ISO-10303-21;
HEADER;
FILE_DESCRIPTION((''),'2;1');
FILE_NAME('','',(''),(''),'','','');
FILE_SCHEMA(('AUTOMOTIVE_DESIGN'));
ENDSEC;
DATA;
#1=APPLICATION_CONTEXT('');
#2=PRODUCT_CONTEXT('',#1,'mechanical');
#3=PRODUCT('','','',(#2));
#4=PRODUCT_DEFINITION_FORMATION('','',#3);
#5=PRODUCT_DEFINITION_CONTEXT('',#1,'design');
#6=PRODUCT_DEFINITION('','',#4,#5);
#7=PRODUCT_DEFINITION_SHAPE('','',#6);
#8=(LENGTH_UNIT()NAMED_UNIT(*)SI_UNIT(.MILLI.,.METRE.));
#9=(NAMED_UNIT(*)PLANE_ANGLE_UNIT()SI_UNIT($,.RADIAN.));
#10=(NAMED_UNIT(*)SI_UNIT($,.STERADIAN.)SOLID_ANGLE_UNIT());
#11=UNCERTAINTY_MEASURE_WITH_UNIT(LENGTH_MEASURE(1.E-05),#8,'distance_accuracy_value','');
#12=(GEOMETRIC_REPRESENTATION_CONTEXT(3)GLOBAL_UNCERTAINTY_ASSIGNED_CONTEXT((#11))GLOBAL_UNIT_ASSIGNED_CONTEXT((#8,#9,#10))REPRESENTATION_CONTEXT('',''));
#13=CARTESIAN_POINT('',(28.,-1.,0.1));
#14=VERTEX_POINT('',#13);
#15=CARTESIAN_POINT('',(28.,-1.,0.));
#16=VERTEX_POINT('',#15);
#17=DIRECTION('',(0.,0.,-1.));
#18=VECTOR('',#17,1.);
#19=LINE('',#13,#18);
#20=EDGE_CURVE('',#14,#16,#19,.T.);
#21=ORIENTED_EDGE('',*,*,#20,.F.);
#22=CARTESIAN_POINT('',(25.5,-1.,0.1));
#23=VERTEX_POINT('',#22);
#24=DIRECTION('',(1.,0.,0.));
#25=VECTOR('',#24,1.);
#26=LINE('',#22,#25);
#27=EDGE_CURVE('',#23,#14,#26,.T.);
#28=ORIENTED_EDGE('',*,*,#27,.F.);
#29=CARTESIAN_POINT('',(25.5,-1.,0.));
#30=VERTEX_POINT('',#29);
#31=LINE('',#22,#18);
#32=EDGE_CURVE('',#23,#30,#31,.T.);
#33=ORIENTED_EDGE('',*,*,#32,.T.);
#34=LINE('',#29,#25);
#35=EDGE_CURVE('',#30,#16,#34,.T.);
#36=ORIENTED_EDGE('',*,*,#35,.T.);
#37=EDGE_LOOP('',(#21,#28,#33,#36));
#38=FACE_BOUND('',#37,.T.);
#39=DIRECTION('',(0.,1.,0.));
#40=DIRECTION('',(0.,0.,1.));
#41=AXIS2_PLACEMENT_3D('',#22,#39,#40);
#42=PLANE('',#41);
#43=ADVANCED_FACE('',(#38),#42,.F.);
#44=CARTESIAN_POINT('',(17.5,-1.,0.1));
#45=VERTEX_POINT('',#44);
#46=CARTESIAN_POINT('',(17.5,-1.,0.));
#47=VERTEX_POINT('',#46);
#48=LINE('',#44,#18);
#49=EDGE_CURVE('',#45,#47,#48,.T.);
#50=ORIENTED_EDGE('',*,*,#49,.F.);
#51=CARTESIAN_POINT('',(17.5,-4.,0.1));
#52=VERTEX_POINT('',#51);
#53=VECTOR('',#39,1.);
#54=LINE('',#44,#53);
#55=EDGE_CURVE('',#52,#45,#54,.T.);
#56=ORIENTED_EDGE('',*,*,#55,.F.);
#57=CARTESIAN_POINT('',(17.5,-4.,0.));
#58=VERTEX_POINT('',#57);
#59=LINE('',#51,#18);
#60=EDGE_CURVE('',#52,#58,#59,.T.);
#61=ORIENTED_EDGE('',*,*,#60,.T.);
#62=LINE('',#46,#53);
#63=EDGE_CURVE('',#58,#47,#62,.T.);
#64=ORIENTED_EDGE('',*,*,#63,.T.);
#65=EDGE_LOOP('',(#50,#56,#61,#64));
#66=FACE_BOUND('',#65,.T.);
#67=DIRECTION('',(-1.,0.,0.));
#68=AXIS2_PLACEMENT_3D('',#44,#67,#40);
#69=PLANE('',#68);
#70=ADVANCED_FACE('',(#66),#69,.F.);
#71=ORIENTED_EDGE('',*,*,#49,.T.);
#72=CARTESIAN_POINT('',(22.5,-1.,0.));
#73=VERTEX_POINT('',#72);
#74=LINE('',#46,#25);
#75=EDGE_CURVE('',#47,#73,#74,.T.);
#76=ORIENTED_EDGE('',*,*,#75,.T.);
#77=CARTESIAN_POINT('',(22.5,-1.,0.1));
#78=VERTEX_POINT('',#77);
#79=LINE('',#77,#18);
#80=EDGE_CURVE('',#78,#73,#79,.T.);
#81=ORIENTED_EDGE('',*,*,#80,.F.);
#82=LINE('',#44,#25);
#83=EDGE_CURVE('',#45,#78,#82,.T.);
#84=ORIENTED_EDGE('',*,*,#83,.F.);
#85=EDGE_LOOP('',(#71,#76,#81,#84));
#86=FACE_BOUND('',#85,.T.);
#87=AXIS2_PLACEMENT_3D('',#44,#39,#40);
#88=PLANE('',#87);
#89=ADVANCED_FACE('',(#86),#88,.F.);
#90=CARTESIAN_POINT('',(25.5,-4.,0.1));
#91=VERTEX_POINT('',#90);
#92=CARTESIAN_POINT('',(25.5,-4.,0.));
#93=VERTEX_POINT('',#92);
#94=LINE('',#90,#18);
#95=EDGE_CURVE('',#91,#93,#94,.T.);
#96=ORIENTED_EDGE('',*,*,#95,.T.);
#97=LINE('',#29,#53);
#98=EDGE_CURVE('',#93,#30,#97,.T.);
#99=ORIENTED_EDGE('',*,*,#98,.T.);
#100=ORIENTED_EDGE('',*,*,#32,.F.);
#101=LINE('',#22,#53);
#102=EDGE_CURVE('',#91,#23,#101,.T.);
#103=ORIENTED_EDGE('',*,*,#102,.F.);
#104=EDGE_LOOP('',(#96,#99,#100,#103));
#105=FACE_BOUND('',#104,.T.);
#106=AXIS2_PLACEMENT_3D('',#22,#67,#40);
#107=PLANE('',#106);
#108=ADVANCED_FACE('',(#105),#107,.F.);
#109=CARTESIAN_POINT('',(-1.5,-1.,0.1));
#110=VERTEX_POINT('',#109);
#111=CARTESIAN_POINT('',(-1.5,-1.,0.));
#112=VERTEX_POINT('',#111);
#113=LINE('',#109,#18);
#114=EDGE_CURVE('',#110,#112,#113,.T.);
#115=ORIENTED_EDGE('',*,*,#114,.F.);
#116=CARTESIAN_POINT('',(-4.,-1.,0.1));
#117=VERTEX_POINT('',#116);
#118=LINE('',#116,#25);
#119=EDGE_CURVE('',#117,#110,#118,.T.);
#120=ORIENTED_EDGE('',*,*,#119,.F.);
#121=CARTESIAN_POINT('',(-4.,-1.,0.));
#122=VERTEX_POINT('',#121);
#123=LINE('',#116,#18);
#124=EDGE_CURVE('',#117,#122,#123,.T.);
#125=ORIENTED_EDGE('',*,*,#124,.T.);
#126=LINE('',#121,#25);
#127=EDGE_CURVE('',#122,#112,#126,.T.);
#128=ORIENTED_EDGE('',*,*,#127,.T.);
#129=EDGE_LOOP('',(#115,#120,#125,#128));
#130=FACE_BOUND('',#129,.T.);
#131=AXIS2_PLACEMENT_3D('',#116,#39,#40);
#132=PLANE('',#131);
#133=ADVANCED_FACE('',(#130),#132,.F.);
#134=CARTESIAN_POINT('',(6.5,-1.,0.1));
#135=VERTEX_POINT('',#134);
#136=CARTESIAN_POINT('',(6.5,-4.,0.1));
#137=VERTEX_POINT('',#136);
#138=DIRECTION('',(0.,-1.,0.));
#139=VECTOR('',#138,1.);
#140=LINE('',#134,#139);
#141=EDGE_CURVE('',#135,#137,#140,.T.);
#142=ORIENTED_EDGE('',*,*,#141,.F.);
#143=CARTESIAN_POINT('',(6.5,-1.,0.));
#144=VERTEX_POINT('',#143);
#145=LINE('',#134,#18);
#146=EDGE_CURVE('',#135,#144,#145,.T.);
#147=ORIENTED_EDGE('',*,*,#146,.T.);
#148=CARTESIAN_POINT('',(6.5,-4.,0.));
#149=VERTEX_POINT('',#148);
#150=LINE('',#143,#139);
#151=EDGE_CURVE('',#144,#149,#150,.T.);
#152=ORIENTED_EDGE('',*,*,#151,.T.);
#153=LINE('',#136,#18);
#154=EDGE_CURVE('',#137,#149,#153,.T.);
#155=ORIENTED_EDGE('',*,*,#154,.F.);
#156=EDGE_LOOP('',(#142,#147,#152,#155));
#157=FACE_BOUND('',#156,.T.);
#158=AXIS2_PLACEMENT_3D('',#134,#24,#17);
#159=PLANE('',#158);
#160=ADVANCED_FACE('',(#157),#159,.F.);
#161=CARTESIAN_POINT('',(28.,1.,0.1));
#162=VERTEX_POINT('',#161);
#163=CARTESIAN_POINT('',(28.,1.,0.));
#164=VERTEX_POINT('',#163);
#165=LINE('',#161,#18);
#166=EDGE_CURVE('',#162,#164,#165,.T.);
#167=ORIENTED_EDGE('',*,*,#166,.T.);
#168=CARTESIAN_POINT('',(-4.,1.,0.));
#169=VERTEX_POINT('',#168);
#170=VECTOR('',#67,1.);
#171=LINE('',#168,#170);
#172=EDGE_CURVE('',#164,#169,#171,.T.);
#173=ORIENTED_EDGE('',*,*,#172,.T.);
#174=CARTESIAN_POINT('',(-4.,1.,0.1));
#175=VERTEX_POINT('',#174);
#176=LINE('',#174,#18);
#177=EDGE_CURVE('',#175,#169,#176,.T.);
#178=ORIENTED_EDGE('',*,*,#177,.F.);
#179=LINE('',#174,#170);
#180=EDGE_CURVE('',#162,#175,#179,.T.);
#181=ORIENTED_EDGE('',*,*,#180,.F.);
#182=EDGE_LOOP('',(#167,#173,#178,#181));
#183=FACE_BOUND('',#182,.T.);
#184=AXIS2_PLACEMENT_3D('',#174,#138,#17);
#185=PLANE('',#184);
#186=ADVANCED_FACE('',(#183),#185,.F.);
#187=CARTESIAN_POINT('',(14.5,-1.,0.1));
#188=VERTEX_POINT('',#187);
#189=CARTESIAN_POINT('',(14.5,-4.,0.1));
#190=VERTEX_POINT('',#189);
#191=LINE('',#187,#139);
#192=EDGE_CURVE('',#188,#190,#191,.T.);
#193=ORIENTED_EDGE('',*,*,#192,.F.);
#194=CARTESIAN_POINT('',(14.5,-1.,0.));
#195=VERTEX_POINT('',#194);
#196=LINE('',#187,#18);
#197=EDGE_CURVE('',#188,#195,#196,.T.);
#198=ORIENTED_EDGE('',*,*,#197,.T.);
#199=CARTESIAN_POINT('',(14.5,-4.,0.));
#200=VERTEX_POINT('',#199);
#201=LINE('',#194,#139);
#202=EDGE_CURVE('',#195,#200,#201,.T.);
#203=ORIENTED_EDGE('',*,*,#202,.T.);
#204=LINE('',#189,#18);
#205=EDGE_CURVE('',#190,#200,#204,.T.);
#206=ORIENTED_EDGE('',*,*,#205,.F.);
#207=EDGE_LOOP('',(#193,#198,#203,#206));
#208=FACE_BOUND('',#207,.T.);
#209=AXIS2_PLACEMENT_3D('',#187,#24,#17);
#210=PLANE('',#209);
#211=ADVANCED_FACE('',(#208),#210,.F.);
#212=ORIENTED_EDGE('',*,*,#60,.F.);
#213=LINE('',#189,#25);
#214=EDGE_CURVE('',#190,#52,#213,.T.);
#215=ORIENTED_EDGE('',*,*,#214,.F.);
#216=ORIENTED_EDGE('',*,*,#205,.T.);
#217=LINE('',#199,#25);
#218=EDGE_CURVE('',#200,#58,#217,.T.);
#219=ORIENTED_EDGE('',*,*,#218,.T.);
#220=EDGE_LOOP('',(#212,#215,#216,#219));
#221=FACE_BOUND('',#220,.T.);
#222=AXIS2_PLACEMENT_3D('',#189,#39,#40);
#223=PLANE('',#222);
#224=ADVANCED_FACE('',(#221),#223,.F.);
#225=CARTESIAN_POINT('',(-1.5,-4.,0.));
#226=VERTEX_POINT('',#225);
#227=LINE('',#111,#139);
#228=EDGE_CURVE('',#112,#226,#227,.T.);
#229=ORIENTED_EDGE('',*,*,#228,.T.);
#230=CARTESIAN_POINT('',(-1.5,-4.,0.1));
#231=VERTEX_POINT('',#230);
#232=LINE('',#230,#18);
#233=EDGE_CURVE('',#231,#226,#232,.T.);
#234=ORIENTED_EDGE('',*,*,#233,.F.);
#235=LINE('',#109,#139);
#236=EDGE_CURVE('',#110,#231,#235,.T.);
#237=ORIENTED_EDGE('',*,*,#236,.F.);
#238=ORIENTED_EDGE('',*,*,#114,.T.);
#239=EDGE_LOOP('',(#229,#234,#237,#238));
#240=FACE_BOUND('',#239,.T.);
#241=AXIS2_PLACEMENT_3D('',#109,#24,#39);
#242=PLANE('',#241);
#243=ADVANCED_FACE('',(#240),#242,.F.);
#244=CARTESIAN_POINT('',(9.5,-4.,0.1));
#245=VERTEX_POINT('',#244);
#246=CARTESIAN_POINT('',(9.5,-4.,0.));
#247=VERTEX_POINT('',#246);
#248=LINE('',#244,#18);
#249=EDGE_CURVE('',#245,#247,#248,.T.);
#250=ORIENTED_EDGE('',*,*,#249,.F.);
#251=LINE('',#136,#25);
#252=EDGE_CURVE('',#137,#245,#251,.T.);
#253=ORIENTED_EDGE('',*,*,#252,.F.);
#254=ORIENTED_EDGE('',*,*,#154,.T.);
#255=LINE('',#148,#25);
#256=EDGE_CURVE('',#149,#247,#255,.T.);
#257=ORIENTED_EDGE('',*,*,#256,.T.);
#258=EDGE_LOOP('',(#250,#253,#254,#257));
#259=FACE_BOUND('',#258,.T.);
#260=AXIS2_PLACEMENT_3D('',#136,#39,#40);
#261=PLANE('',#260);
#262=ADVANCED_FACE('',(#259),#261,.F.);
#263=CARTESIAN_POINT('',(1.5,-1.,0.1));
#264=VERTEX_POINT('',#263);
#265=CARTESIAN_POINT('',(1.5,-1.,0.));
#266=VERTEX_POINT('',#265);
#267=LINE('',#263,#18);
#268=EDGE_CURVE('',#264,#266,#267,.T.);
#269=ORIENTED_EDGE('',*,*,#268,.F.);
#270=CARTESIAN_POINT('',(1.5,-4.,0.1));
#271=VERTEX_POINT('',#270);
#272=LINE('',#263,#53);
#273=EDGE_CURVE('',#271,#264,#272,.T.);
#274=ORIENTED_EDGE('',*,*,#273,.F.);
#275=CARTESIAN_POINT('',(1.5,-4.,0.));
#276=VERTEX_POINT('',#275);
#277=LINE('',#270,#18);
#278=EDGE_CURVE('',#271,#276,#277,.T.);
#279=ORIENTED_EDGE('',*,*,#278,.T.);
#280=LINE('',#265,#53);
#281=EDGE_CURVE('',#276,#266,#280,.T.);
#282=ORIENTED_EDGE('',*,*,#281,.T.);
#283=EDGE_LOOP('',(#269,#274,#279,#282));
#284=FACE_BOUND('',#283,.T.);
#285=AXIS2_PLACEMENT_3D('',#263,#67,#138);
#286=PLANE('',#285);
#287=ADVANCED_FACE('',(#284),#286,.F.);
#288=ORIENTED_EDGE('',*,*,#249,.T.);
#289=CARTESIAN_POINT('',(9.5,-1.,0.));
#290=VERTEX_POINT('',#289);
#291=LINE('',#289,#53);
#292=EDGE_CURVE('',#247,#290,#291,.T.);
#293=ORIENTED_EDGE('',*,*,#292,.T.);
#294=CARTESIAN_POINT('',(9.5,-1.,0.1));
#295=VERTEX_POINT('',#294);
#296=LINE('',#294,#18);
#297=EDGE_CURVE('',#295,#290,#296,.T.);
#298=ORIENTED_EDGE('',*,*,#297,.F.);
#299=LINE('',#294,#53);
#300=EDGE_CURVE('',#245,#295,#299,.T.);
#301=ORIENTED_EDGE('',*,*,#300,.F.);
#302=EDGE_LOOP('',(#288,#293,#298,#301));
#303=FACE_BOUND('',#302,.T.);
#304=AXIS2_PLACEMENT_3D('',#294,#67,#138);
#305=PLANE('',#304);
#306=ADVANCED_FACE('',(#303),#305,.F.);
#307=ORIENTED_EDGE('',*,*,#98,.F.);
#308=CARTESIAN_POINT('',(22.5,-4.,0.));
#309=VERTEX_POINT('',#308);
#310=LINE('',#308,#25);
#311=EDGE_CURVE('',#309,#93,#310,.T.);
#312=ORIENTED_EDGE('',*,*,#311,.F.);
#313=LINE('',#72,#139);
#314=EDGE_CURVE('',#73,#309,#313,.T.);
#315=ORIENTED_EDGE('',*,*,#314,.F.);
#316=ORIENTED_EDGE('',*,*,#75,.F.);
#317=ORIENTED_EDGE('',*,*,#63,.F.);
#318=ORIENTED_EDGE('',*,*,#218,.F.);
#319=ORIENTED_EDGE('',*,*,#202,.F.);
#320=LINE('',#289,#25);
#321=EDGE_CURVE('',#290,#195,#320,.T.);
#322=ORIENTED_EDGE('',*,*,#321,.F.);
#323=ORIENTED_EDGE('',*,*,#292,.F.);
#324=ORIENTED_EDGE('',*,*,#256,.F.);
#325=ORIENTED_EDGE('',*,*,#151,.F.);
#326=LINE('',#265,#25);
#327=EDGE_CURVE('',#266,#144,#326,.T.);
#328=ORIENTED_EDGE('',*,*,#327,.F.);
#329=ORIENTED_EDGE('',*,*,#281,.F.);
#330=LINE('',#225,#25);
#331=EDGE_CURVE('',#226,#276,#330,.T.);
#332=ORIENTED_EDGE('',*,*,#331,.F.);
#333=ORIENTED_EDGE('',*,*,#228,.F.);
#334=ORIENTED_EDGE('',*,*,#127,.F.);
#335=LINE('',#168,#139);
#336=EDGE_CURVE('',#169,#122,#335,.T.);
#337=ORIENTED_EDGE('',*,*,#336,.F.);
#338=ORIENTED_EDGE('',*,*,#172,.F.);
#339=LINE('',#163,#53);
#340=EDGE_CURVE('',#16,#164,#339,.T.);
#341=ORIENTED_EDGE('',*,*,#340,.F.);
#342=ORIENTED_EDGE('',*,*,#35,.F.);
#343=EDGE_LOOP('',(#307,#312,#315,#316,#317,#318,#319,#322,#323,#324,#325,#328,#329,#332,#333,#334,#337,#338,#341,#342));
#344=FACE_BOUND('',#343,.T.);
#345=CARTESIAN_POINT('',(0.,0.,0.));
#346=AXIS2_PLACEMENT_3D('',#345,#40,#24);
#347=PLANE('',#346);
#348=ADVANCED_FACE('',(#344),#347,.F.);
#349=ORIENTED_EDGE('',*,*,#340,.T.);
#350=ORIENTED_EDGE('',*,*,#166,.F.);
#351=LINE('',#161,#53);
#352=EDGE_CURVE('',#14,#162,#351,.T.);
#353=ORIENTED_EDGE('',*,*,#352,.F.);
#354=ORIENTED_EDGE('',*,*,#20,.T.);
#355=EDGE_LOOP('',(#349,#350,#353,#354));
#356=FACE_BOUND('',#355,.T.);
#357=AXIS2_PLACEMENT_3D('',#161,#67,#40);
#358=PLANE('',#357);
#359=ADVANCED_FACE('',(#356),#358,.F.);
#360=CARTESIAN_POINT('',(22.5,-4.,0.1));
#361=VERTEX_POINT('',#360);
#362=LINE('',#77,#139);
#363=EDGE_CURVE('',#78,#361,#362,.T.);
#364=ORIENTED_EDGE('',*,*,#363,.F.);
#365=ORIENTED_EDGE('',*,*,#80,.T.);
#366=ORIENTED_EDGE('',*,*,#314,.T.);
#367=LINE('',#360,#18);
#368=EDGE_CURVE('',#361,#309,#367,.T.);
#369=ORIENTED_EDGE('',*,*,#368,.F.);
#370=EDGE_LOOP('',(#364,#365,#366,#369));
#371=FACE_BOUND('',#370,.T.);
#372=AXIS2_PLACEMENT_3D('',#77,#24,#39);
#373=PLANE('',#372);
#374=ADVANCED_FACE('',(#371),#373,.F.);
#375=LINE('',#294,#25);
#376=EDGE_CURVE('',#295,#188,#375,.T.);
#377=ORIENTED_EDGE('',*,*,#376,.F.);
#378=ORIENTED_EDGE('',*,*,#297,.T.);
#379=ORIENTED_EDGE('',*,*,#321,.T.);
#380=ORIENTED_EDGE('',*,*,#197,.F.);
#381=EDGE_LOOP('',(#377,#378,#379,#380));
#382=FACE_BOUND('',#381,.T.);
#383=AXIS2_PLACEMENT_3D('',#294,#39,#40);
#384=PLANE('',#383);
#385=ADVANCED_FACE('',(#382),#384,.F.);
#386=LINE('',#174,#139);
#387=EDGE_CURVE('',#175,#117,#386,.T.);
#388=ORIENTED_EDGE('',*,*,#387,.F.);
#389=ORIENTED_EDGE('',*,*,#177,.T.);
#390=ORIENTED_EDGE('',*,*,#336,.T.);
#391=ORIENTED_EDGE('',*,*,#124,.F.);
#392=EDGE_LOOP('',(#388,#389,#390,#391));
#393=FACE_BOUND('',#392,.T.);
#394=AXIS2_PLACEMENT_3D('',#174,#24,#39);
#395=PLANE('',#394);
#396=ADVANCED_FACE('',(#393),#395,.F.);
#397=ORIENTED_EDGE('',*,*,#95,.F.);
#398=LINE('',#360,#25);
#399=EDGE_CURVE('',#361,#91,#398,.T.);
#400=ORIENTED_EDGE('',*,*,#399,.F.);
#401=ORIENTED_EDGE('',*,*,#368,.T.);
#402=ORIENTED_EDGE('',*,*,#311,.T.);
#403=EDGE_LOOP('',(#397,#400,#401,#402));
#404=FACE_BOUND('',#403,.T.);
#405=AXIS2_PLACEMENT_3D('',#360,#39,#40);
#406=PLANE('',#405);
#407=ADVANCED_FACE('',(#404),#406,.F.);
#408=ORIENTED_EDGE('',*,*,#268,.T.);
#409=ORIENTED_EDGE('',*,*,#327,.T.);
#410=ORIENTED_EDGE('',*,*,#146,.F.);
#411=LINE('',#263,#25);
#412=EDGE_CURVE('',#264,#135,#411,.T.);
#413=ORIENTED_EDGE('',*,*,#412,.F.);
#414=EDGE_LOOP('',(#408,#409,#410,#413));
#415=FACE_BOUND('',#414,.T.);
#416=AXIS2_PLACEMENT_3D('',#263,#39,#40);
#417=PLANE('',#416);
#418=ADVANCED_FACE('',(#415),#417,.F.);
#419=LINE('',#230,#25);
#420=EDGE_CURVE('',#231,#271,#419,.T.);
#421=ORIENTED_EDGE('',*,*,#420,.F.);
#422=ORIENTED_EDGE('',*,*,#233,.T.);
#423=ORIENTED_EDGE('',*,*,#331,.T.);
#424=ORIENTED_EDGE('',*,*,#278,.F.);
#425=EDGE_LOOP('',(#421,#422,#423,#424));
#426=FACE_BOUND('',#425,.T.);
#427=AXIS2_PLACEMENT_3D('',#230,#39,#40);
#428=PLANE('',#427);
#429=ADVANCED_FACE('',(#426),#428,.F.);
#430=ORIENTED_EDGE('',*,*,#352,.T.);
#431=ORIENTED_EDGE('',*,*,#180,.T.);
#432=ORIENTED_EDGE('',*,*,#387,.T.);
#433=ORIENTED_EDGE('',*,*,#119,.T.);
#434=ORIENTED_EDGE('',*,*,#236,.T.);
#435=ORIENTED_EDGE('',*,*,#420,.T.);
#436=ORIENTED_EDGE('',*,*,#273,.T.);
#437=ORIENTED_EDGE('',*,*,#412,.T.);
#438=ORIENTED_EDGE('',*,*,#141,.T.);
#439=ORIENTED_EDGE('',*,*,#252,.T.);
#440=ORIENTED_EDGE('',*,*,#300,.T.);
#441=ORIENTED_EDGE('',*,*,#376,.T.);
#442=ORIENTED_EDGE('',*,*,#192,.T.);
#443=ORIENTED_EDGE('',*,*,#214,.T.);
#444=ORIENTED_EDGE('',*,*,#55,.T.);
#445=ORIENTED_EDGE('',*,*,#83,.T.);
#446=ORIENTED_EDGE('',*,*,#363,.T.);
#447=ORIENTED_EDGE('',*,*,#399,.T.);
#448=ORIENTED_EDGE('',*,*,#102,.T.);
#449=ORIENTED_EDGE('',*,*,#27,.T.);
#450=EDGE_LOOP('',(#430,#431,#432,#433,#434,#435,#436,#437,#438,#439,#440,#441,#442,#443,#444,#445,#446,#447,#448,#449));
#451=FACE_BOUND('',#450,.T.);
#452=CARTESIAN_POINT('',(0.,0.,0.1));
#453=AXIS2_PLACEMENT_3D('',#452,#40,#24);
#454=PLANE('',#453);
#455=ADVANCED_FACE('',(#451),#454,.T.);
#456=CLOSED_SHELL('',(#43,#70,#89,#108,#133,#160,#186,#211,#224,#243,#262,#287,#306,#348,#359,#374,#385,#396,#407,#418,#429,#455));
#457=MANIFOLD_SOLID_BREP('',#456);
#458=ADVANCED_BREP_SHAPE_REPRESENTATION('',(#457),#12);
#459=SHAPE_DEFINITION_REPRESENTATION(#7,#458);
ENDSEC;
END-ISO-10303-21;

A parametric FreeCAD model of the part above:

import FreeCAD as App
import Part
import Sketcher
from FreeCAD import Vector


def add_polygon(sketch, points):
    """Adds a closed chain of lines whose ends are joined by coincident constraints."""
    first, n = sketch.GeometryCount, len(points)
    for a, b in zip(points, points[1:] + points[:1]):
        sketch.addGeometry(Part.LineSegment(App.Vector(*a, 0), App.Vector(*b, 0)), False)
    for i in range(n):
        sketch.addConstraint(Sketcher.Constraint("Coincident", first + i, 2, first + (i + 1) % n, 1))

doc = App.newDocument("Part")
body = doc.addObject("PartDesign::Body", "Body")

# Sketch on XY plane
sketch1 = doc.addObject("Sketcher::SketchObject", "Sketch")
body.addObject(sketch1)
sketch1.AttachmentSupport = (doc.XY_Plane, [""])
sketch1.MapMode = "FlatFace"
add_polygon(sketch1, [(6.5, -4), (9.5, -4), (9.5, -1), (14.5, -1), (14.5, -4), (17.5, -4), (17.5, -1), (22.5, -1), (22.5, -4), (25.5, -4), (25.5, -1), (28, -1), (28, 1), (-4, 1), (-4, -1), (-1.5, -1), (-1.5, -4), (1.5, -4), (1.5, -1), (6.5, -1)])  # lines 0-19
sketch1.addConstraint([
    Sketcher.Constraint("Horizontal", 0),
    Sketcher.Constraint("Vertical", 1),
    Sketcher.Constraint("Horizontal", 2),
    Sketcher.Constraint("Vertical", 3),
    Sketcher.Constraint("Horizontal", 4),
    Sketcher.Constraint("Vertical", 5),
    Sketcher.Constraint("Horizontal", 6),
    Sketcher.Constraint("Vertical", 7),
    Sketcher.Constraint("Horizontal", 8),
    Sketcher.Constraint("Vertical", 9),
    Sketcher.Constraint("Horizontal", 10),
    Sketcher.Constraint("Vertical", 11),
    Sketcher.Constraint("Horizontal", 12),
    Sketcher.Constraint("Vertical", 13),
    Sketcher.Constraint("Horizontal", 14),
    Sketcher.Constraint("Vertical", 15),
    Sketcher.Constraint("Horizontal", 16),
    Sketcher.Constraint("Vertical", 17),
    Sketcher.Constraint("Horizontal", 18),
    Sketcher.Constraint("Vertical", 19),
    Sketcher.Constraint("Symmetric", 14, 2, 17, 2, -2),
    Sketcher.Constraint("Horizontal", 0, 2, 3, 2),
    Sketcher.Constraint("Horizontal", 2, 2, 5, 2),
    Sketcher.Constraint("Horizontal", 4, 2, 7, 2),
    Sketcher.Constraint("Horizontal", 6, 2, 9, 2),
    Sketcher.Constraint("Horizontal", 10, 2, 13, 2),
    Sketcher.Constraint("Horizontal", 8, 2, 15, 2),
    Sketcher.Constraint("Equal", 0, 4),
    Sketcher.Constraint("Equal", 2, 6),
    Sketcher.Constraint("Equal", 4, 8),
    Sketcher.Constraint("Equal", 10, 14),
    Sketcher.Constraint("Equal", 8, 16),
    Sketcher.Constraint("Equal", 6, 18),
    Sketcher.Constraint("Equal", 16, 1),
    Sketcher.Constraint("DistanceX", 0, 1, 0, 2, 3.0),
    Sketcher.Constraint("DistanceX", 2, 1, 2, 2, 5.0),
    Sketcher.Constraint("DistanceX", 12, 2, 12, 1, 32.0),
    Sketcher.Constraint("DistanceY", 11, 1, 11, 2, 2.0),
    Sketcher.Constraint("DistanceY", 0, 2, -1, 1, 4.0),
])
pad1 = doc.addObject("PartDesign::Pad", "Pad")
body.addObject(pad1)
pad1.Profile = sketch1
pad1.Length = 0.1

doc.recompute()
